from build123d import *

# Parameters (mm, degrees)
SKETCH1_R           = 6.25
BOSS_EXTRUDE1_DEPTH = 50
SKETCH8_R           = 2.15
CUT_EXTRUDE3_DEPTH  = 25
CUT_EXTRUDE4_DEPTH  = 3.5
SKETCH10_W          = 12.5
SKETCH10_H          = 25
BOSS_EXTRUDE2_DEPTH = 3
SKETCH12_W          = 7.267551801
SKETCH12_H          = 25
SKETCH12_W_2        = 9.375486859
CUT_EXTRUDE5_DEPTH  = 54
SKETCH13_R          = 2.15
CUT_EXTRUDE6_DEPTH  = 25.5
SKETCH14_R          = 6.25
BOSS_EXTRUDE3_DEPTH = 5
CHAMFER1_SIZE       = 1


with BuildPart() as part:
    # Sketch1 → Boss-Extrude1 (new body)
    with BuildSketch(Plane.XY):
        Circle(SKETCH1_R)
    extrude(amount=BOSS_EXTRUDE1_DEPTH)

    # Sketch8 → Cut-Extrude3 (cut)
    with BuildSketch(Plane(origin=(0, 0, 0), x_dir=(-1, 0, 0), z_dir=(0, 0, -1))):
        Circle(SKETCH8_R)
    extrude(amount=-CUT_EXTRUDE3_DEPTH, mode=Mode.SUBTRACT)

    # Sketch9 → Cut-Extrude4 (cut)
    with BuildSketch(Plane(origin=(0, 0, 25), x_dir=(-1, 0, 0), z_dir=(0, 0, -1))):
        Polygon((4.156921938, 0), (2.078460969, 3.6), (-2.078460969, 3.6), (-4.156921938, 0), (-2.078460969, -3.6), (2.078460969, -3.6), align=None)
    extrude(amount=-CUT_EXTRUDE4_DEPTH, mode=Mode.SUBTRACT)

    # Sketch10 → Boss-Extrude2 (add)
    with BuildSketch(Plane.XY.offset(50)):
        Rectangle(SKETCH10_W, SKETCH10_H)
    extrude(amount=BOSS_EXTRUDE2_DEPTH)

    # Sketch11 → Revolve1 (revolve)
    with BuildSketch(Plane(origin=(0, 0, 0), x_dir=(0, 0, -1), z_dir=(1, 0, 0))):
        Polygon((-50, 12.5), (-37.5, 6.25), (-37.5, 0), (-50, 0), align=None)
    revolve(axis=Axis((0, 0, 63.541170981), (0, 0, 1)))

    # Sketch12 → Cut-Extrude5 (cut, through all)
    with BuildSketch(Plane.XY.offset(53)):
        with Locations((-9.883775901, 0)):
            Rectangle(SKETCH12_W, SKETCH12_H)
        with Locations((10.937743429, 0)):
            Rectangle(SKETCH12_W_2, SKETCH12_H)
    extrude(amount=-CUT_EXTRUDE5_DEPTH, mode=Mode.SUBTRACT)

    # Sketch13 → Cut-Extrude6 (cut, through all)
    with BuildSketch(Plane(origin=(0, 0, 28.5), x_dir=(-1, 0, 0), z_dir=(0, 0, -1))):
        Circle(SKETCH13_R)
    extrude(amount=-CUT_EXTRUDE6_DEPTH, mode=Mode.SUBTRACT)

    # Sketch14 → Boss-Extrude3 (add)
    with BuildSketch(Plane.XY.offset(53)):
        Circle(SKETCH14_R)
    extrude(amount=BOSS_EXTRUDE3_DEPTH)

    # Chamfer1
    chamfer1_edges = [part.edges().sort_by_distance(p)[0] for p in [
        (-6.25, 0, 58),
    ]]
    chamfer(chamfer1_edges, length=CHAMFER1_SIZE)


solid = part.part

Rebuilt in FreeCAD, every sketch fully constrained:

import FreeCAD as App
import Part
import Sketcher
from FreeCAD import Vector
Q = App.Units.Quantity


def edges_at(feature, points):
    """Names of the edges that pass closest to the given points."""
    edges = feature.Shape.Edges
    near = lambda p: min(range(len(edges)), key=lambda i: edges[i].distToShape(Part.Vertex(*p))[0])
    return sorted({f"Edge{near(p) + 1}" for p in points})


def add_polygon(sketch, points):
    """Adds a closed chain of lines whose ends are joined by coincident constraints."""
    first, n = sketch.GeometryCount, len(points)
    for a, b in zip(points, points[1:] + points[:1]):
        sketch.addGeometry(Part.LineSegment(App.Vector(*a, 0), App.Vector(*b, 0)), False)
    for i in range(n):
        sketch.addConstraint(Sketcher.Constraint("Coincident", first + i, 2, first + (i + 1) % n, 1))

doc = App.newDocument("Part")
params = doc.addObject("Spreadsheet::Sheet", "Params")
for row, (alias, value) in enumerate([
    ("sketch1_diameter", "12.5 mm"),
    ("pad1_length", "50 mm"),
    ("sketch2_diameter", "4.3 mm"),
    ("pocket1_length", "25 mm"),
    ("pocket2_length", "3.5 mm"),
    ("sketch4_height", "25 mm"),
    ("sketch4_width", "12.5 mm"),
    ("pad2_length", "3 mm"),
    ("sketch5_width", "12.5 mm"),
    ("sketch5_width2", "6.25 mm"),
    ("revolution_angle", "360 deg"),
    ("sketch6_height", "25 mm"),
    ("sketch7_diameter", "4.3 mm"),
    ("sketch8_diameter", "12.5 mm"),
    ("pad3_length", "5 mm"),
    ("chamfer_size", "1 mm"),
], start=1):
    params.set(f"A{row}", alias)
    params.set(f"B{row}", "=" + value)
    params.setAlias(f"B{row}", alias)

body = doc.addObject("PartDesign::Body", "Body")

# Sketch on XY plane
sketch1 = body.newObject("Sketcher::SketchObject", "Sketch")
sketch1.AttachmentSupport = (doc.getObject("XY_Plane"), [""])
sketch1.MapMode = "FlatFace"
sketch1.addGeometry(Part.Circle(Vector(0, 0, 0), Vector(0, 0, 1), 6), False)
sketch1.addConstraint([
    Sketcher.Constraint("Coincident", 0, 3, -1, 1),
    Sketcher.Constraint("Diameter", 0, Q("12.5 mm")),
])
sketch1.setExpression("Constraints[1]", "Params.sketch1_diameter")
pad1 = body.newObject("PartDesign::Pad", "Pad")
pad1.Profile = sketch1
pad1.setExpression("Length", "Params.pad1_length")

# Sketch on XY plane
sketch2 = body.newObject("Sketcher::SketchObject", "Sketch001")
sketch2.AttachmentSupport = (doc.getObject("XY_Plane"), [""])
sketch2.MapMode = "FlatFace"
sketch2.addGeometry(Part.Circle(Vector(0, 0, 0), Vector(0, 0, 1), 2.1), False)
sketch2.addConstraint([
    Sketcher.Constraint("Coincident", 0, 3, -1, 1),
    Sketcher.Constraint("Diameter", 0, Q("4.3 mm")),
])
sketch2.setExpression("Constraints[1]", "Params.sketch2_diameter")
pocket1 = body.newObject("PartDesign::Pocket", "Pocket")
pocket1.Profile = sketch2
pocket1.setExpression("Length", "Params.pocket1_length")
pocket1.Reversed = True

# Sketch on XY plane
sketch3 = body.newObject("Sketcher::SketchObject", "Sketch002")
sketch3.AttachmentSupport = (doc.getObject("XY_Plane"), [""])
sketch3.MapMode = "FlatFace"
sketch3.AttachmentOffset = App.Placement(Vector(0, 0, 25), App.Rotation())
add_polygon(sketch3, [(-4.2, 0), (-2.1, 3.6), (2.1, 3.6), (4.2, 0), (2.1, -3.6), (-2.1, -3.6)])  # lines 0-5
sketch3.addConstraint([
    Sketcher.Constraint("Horizontal", 1),
    Sketcher.Constraint("Horizontal", 4),
    Sketcher.Constraint("Symmetric", 0, 2, 3, 2, -1, 1),
    Sketcher.Constraint("Symmetric", 2, 2, 5, 2, -1, 1),
    Sketcher.Constraint("PointOnObject", 2, 2, -1),
    Sketcher.Constraint("Parallel", 2, 5),
    Sketcher.Constraint("Vertical", 1, 2, 3, 2),
    Sketcher.Constraint("Angle", 0, Q("60 deg")),
    Sketcher.Constraint("DistanceY", -1, 1, 0, 2, Q("3.6 mm")),
    Sketcher.Constraint("DistanceX", 1, 1, 1, 2, Q("4.156922 mm")),
])
pocket2 = body.newObject("PartDesign::Pocket", "Pocket001")
pocket2.Profile = sketch3
pocket2.setExpression("Length", "Params.pocket2_length")
pocket2.Reversed = True

# Sketch on XY plane
sketch4 = body.newObject("Sketcher::SketchObject", "Sketch003")
sketch4.AttachmentSupport = (doc.getObject("XY_Plane"), [""])
sketch4.MapMode = "FlatFace"
sketch4.AttachmentOffset = App.Placement(Vector(0, 0, 50), App.Rotation())
add_polygon(sketch4, [(-6, 12), (-6, -12), (6, -12), (6, 12)])  # lines 0-3
sketch4.addConstraint([
    Sketcher.Constraint("Vertical", 0),
    Sketcher.Constraint("Horizontal", 1),
    Sketcher.Constraint("Vertical", 2),
    Sketcher.Constraint("Horizontal", 3),
    Sketcher.Constraint("Symmetric", 0, 2, 2, 2, -1, 1),
    Sketcher.Constraint("DistanceY", 0, 2, 0, 1, Q("25 mm")),
    Sketcher.Constraint("DistanceX", 1, 1, 1, 2, Q("12.5 mm")),
])
sketch4.setExpression("Constraints[9]", "Params.sketch4_height")
sketch4.setExpression("Constraints[10]", "Params.sketch4_width")
pad2 = body.newObject("PartDesign::Pad", "Pad001")
pad2.Profile = sketch4
pad2.setExpression("Length", "Params.pad2_length")

# Sketch on YZ plane
sketch5 = body.newObject("Sketcher::SketchObject", "Sketch004")
sketch5.AttachmentSupport = (doc.getObject("YZ_Plane"), [""])
sketch5.MapMode = "FlatFace"
add_polygon(sketch5, [(6, 38), (12, 50), (0, 50), (0, 38)])  # lines 0-3
sketch5.addConstraint([
    Sketcher.Constraint("Horizontal", 1),
    Sketcher.Constraint("Vertical", 2),
    Sketcher.Constraint("Horizontal", 3),
    Sketcher.Constraint("PointOnObject", 1, 2, -2),
    Sketcher.Constraint("Equal", 1, 2),
    Sketcher.Constraint("DistanceX", 1, 2, 1, 1, Q("12.5 mm")),
    Sketcher.Constraint("DistanceY", -1, 1, 0, 2, Q("50 mm")),
    Sketcher.Constraint("DistanceX", 3, 1, 3, 2, Q("6.25 mm")),
])
sketch5.setExpression("Constraints[9]", "Params.sketch5_width")
sketch5.setExpression("Constraints[11]", "Params.sketch5_width2")
revolution = body.newObject("PartDesign::Revolution", "Revolution")
revolution.Profile = sketch5
revolution.ReferenceAxis = (sketch5, ["V_Axis"])
revolution.setExpression("Angle", "Params.revolution_angle")

# Sketch on XY plane
sketch6 = body.newObject("Sketcher::SketchObject", "Sketch005")
sketch6.AttachmentSupport = (doc.getObject("XY_Plane"), [""])
sketch6.MapMode = "FlatFace"
sketch6.AttachmentOffset = App.Placement(Vector(0, 0, 53), App.Rotation())
add_polygon(sketch6, [(-14, 12), (-14, -12), (-6, -12), (-6, 12)])  # lines 0-3
add_polygon(sketch6, [(6, 12), (6, -12), (16, -12), (16, 12)])  # lines 4-7
sketch6.addConstraint([
    Sketcher.Constraint("Vertical", 0),
    Sketcher.Constraint("Horizontal", 1),
    Sketcher.Constraint("Vertical", 2),
    Sketcher.Constraint("Horizontal", 3),
    Sketcher.Constraint("Vertical", 4),
    Sketcher.Constraint("Horizontal", 5),
    Sketcher.Constraint("Vertical", 6),
    Sketcher.Constraint("Horizontal", 7),
    Sketcher.Constraint("Symmetric", 2, 2, 4, 2, -1, 1),
    Sketcher.Constraint("Horizontal", 1, 2, 4, 2),
    Sketcher.Constraint("Horizontal", 3, 2, 6, 2),
    Sketcher.Constraint("DistanceY", 0, 2, 0, 1, Q("25 mm")),
    Sketcher.Constraint("DistanceX", 1, 2, 4, 2, Q("12.5 mm")),
    Sketcher.Constraint("DistanceX", 1, 1, 1, 2, Q("7.267552 mm")),
    Sketcher.Constraint("DistanceX", 5, 1, 5, 2, Q("9.375487 mm")),
])
sketch6.setExpression("Constraints[19]", "Params.sketch6_height")
pocket3 = body.newObject("PartDesign::Pocket", "Pocket002")
pocket3.Profile = sketch6
pocket3.Type = "ThroughAll"

# Sketch on XY plane
sketch7 = body.newObject("Sketcher::SketchObject", "Sketch006")
sketch7.AttachmentSupport = (doc.getObject("XY_Plane"), [""])
sketch7.MapMode = "FlatFace"
sketch7.AttachmentOffset = App.Placement(Vector(0, 0, 28.5), App.Rotation())
sketch7.addGeometry(Part.Circle(Vector(0, 0, 0), Vector(0, 0, 1), 2.1), False)
sketch7.addConstraint([
    Sketcher.Constraint("Coincident", 0, 3, -1, 1),
    Sketcher.Constraint("Diameter", 0, Q("4.3 mm")),
])
sketch7.setExpression("Constraints[1]", "Params.sketch7_diameter")
pocket4 = body.newObject("PartDesign::Pocket", "Pocket003")
pocket4.Profile = sketch7
pocket4.Type = "ThroughAll"
pocket4.Reversed = True

# Sketch on XY plane
sketch8 = body.newObject("Sketcher::SketchObject", "Sketch007")
sketch8.AttachmentSupport = (doc.getObject("XY_Plane"), [""])
sketch8.MapMode = "FlatFace"
sketch8.AttachmentOffset = App.Placement(Vector(0, 0, 53), App.Rotation())
sketch8.addGeometry(Part.Circle(Vector(0, 0, 0), Vector(0, 0, 1), 6), False)
sketch8.addConstraint([
    Sketcher.Constraint("Coincident", 0, 3, -1, 1),
    Sketcher.Constraint("Diameter", 0, Q("12.5 mm")),
])
sketch8.setExpression("Constraints[1]", "Params.sketch8_diameter")
pad3 = body.newObject("PartDesign::Pad", "Pad002")
pad3.Profile = sketch8
pad3.setExpression("Length", "Params.pad3_length")
doc.recompute()

chamfer = body.newObject("PartDesign::Chamfer", "Chamfer")
chamfer.Base = (pad3, edges_at(pad3, [(-6.25, 0, 58)]))
chamfer.setExpression("Size", "Params.chamfer_size")

doc.recompute()
